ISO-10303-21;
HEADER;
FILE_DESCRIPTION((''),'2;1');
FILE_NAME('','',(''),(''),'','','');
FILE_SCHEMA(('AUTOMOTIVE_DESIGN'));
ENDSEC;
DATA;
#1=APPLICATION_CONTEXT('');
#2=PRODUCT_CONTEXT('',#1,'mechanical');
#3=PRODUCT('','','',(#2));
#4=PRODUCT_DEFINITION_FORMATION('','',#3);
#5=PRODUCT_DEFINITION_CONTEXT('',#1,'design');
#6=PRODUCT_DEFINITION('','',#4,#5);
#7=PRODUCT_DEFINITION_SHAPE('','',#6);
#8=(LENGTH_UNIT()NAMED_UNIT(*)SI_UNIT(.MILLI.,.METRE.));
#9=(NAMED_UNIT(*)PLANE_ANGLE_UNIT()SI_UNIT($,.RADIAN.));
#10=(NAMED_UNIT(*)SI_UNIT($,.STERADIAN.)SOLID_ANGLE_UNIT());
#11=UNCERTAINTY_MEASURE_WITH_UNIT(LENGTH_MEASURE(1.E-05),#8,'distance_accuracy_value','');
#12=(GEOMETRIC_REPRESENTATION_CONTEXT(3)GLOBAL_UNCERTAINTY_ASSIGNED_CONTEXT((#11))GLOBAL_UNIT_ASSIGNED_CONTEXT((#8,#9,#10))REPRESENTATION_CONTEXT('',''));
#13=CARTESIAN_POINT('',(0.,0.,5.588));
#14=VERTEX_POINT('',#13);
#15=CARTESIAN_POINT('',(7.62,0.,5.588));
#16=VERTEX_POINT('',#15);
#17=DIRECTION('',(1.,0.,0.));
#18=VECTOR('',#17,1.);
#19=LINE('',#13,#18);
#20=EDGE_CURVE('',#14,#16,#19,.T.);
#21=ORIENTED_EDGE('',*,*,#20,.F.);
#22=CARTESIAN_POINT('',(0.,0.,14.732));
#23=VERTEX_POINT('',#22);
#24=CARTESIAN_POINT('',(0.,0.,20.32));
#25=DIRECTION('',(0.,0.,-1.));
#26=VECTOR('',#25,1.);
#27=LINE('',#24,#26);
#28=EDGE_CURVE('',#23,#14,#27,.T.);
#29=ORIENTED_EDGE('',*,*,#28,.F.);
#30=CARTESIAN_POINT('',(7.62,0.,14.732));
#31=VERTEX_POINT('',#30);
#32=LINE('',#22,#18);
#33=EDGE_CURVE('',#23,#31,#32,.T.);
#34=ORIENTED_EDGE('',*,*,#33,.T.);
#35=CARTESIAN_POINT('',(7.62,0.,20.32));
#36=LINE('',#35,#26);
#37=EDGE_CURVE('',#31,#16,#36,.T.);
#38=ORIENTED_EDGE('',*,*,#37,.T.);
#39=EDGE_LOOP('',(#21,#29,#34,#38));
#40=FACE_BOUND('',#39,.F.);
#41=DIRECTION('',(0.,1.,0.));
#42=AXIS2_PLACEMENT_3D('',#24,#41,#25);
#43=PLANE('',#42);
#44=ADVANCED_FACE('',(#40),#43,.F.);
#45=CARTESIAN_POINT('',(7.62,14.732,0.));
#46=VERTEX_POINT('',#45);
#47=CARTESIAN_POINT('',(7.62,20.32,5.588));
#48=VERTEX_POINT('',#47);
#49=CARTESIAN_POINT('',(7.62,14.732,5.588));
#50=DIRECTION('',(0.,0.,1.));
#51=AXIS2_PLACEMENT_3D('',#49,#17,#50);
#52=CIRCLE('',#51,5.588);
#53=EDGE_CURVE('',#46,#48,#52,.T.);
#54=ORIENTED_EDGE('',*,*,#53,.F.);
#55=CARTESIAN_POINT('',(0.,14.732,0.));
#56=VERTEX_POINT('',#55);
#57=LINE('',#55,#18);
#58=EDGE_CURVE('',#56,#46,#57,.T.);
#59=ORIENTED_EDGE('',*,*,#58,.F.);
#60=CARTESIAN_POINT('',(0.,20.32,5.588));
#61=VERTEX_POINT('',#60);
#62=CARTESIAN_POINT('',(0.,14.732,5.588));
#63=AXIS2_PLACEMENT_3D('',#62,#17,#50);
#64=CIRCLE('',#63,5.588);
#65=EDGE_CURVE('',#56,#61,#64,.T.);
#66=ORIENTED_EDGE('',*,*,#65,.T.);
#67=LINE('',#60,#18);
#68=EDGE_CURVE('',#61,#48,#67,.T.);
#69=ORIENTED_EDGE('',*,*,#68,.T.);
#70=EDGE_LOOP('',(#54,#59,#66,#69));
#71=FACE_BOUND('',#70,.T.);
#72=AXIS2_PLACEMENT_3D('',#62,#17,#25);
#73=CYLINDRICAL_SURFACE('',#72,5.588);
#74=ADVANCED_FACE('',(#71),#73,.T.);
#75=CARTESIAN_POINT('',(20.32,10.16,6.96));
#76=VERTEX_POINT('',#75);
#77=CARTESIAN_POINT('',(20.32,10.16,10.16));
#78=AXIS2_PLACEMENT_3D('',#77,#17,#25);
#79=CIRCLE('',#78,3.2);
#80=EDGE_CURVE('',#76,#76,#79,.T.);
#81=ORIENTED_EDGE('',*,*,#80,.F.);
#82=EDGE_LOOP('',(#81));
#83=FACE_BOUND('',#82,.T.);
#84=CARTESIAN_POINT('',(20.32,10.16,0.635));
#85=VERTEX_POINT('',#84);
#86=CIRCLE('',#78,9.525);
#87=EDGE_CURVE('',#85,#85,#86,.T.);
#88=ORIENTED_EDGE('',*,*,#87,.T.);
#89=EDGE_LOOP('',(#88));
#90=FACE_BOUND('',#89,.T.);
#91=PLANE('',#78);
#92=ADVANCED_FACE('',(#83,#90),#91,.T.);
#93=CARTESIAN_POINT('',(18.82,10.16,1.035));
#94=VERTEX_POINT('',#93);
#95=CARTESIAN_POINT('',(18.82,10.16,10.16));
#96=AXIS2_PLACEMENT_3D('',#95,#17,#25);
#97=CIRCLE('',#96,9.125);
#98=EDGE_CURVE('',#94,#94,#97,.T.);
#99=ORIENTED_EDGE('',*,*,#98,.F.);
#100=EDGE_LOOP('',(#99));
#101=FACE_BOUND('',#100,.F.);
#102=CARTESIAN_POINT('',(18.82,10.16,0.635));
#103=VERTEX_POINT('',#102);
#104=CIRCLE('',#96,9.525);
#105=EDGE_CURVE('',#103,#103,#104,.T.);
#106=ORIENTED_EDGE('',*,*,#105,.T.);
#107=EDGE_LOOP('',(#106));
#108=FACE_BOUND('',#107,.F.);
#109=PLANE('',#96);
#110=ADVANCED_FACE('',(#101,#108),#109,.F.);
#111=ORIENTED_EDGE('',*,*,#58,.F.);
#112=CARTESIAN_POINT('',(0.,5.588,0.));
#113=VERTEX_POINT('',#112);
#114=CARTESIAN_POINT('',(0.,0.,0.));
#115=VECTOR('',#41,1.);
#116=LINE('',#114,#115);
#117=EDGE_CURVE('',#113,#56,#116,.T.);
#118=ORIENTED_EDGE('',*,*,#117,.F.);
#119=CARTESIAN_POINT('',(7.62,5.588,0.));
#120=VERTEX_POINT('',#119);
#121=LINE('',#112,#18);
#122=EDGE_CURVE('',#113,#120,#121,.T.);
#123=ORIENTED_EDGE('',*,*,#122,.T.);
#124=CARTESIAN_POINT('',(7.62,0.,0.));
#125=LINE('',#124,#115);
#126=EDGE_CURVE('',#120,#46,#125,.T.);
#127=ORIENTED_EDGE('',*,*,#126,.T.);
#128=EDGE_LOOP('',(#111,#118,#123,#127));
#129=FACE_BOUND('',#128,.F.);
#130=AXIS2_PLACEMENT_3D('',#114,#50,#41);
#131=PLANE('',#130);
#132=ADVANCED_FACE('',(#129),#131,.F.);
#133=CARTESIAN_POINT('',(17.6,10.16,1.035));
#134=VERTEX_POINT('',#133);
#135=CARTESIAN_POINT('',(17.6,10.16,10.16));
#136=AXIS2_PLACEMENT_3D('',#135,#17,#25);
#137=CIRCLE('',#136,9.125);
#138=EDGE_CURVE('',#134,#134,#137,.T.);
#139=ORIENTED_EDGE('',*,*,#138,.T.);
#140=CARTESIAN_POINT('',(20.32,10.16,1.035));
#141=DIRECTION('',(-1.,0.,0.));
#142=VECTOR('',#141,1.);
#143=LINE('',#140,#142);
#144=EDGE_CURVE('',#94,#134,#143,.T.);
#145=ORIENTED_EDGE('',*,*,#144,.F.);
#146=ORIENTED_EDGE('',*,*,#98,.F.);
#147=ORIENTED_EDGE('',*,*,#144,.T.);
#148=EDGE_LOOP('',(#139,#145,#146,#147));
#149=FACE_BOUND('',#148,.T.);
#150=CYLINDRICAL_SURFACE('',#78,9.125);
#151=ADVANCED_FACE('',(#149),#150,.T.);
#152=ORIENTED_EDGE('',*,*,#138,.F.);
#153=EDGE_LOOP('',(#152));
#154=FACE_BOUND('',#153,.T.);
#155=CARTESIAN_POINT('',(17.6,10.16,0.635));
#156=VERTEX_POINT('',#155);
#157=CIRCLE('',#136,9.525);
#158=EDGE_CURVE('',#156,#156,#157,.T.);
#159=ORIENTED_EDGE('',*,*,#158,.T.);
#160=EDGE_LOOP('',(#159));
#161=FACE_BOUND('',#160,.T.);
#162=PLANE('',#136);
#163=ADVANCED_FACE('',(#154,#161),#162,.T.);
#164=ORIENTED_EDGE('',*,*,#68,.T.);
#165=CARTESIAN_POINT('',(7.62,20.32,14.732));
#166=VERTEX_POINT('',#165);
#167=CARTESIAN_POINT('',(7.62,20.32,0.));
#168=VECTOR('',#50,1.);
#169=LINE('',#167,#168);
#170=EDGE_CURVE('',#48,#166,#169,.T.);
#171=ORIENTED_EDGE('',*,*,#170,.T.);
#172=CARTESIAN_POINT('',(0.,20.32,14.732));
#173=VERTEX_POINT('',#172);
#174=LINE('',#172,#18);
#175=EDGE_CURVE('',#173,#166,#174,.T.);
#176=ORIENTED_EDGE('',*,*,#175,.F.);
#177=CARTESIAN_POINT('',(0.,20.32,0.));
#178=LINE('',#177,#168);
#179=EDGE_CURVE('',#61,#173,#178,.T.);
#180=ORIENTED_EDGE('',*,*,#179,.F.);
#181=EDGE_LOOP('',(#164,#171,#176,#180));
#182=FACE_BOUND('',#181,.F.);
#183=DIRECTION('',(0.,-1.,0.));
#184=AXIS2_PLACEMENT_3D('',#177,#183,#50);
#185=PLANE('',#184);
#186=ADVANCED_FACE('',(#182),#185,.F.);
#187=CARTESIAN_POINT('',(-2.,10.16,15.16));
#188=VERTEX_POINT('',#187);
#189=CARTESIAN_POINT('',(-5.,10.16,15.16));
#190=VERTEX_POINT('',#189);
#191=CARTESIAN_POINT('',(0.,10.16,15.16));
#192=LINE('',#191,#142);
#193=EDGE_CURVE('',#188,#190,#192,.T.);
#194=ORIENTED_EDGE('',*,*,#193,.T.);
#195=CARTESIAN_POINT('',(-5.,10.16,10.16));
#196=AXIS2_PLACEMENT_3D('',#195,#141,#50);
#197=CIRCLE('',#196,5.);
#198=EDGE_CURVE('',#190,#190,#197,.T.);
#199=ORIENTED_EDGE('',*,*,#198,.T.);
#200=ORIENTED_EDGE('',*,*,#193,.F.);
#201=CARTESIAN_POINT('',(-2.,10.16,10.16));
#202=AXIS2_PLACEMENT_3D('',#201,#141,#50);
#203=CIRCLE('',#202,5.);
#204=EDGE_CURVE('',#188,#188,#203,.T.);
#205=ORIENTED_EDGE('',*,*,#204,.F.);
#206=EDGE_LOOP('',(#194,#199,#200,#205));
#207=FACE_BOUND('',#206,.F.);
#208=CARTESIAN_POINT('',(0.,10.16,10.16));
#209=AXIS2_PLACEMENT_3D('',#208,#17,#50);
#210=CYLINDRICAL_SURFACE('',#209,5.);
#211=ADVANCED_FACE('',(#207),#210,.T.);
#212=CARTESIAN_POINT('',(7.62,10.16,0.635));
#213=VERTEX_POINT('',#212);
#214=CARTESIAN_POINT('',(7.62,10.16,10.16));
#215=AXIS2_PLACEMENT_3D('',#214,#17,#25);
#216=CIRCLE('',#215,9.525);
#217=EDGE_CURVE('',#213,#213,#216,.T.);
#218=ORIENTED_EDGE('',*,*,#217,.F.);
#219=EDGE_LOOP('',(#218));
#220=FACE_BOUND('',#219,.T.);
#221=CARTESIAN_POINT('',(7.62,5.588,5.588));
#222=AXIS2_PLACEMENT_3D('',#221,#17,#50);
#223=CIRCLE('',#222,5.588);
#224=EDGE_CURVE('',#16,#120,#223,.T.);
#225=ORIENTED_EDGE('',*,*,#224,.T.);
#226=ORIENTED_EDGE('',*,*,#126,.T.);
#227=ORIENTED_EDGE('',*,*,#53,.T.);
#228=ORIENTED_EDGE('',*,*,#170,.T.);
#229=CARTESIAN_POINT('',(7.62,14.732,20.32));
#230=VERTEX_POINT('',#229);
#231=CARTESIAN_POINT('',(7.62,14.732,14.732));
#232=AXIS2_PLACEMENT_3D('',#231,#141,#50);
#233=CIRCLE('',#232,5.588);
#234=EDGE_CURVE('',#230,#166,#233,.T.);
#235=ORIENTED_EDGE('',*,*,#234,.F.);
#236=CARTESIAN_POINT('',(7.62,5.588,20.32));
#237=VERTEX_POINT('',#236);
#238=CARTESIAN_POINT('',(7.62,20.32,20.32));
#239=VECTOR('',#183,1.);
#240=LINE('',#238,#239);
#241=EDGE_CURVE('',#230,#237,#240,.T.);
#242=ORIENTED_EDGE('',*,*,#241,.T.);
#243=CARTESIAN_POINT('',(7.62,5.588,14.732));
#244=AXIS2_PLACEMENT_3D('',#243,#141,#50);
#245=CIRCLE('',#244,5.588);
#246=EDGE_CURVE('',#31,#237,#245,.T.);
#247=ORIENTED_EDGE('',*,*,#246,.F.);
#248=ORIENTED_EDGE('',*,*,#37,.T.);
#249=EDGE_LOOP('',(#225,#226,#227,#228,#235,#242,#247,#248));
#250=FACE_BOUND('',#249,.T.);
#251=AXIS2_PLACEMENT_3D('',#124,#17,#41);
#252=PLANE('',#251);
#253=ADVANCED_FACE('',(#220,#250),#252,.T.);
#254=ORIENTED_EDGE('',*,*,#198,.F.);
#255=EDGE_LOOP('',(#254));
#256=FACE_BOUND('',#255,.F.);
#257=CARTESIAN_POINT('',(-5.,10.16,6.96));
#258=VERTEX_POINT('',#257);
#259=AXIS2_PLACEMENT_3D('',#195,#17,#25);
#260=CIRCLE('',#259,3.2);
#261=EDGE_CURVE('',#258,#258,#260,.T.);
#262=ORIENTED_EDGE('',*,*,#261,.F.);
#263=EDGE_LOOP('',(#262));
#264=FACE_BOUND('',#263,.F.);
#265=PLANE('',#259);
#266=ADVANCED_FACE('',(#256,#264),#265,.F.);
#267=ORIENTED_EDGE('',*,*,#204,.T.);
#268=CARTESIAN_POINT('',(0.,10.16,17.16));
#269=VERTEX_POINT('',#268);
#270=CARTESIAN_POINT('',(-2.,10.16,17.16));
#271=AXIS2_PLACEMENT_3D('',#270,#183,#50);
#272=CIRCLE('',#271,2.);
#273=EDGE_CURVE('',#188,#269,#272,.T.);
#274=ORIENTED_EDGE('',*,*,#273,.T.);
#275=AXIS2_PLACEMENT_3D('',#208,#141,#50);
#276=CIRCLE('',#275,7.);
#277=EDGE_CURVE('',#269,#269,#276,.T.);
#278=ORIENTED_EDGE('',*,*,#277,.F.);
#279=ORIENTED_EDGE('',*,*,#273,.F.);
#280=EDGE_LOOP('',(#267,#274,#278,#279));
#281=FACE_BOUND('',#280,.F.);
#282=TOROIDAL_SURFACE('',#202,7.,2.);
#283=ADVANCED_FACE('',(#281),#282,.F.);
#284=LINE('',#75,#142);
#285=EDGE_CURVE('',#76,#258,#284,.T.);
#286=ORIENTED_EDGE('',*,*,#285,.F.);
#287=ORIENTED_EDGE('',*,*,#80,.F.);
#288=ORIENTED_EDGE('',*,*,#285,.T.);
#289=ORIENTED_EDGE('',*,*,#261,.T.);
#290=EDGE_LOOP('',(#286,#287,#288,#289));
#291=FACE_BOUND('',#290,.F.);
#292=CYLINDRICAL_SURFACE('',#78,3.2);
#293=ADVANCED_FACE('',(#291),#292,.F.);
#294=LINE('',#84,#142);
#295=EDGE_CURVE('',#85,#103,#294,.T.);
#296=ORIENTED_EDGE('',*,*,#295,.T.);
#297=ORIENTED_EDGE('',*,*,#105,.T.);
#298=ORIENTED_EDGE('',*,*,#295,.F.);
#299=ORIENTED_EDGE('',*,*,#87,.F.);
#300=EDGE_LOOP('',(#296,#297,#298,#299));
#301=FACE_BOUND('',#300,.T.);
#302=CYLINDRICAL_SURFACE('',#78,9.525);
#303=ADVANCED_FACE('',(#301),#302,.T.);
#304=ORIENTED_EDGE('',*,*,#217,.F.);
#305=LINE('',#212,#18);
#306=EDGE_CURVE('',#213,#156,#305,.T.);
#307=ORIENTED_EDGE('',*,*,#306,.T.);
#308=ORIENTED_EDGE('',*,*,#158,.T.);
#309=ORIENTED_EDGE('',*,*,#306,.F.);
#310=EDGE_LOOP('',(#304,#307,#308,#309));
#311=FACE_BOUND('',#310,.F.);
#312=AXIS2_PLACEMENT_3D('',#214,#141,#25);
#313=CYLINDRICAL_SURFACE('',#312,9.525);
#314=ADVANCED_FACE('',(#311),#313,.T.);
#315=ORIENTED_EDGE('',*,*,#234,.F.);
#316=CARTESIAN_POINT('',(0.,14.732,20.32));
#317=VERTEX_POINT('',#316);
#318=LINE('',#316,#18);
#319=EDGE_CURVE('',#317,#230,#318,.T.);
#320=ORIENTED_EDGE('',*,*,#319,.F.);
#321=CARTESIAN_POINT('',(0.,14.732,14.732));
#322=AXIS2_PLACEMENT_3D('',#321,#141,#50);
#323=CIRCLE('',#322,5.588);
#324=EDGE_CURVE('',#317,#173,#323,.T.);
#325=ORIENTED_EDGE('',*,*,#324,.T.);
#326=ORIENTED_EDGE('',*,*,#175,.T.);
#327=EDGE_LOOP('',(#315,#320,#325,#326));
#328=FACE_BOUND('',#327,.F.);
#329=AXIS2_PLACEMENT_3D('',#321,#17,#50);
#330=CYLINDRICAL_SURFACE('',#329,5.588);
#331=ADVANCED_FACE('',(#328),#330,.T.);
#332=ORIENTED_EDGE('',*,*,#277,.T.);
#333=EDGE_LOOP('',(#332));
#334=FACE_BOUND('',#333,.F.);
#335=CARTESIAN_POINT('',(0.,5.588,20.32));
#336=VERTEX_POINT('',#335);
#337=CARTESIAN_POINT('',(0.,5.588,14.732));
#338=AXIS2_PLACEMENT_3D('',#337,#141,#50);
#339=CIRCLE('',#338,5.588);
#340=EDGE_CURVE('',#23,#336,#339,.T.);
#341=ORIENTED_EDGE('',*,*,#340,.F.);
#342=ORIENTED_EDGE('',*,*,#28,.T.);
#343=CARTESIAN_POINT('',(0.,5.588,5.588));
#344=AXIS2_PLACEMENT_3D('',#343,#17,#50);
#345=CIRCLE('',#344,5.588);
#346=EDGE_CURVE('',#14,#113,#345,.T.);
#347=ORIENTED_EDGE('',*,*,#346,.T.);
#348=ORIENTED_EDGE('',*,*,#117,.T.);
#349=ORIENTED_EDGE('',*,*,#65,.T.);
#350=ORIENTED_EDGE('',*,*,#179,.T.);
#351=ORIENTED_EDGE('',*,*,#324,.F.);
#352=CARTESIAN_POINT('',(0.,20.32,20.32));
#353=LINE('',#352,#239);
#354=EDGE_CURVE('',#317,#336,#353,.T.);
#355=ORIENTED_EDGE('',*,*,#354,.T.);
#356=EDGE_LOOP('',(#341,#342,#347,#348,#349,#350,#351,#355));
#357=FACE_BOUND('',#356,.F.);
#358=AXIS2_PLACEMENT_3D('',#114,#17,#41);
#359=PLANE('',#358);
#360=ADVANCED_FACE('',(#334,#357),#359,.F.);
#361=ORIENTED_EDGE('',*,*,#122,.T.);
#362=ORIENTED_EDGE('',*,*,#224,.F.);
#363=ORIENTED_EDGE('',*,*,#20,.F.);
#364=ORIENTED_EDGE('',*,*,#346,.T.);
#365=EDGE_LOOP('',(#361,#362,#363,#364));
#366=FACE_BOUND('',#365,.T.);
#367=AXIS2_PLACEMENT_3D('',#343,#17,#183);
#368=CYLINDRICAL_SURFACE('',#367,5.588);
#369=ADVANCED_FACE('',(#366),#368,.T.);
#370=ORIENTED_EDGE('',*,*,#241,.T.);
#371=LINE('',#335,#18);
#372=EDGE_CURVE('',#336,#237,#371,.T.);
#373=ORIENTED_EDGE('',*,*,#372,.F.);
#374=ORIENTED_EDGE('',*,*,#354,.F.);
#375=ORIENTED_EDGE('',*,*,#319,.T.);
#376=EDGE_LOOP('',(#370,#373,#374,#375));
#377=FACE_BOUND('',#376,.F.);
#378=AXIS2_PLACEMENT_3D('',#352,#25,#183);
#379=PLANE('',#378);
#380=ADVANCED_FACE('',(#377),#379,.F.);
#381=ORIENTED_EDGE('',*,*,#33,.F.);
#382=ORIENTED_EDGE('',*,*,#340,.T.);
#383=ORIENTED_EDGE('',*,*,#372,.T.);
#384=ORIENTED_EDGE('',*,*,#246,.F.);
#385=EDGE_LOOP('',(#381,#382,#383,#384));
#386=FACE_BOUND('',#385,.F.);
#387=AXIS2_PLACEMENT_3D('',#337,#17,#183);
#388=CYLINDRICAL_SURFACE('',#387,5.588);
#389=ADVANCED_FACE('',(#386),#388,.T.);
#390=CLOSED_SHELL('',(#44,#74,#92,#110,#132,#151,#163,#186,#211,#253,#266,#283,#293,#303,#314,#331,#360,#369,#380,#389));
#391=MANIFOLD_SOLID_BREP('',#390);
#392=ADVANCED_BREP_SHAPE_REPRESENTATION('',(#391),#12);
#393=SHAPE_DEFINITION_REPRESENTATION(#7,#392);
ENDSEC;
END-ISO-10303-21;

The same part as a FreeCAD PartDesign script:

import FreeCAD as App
import Part
import Sketcher
from FreeCAD import Vector


def edges_at(feature, points):
    """Names of the edges that pass closest to the given points."""
    edges = feature.Shape.Edges
    near = lambda p: min(range(len(edges)), key=lambda i: edges[i].distToShape(Part.Vertex(*p))[0])
    return sorted({f"Edge{near(p) + 1}" for p in points})

doc = App.newDocument("Part")
body = doc.addObject("PartDesign::Body", "Body")

sketch1 = body.newObject("Sketcher::SketchObject", "Sketch")
sketch1.AttachmentSupport = (doc.getObject("YZ_Plane"), [""])
sketch1.MapMode = "FlatFace"
sketch1.addGeometry([
    Part.LineSegment(Vector(0, 20.32, 0), Vector(0, 0, 0)),
    Part.LineSegment(Vector(0, 0, 0), Vector(20.32, 0, 0)),
    Part.LineSegment(Vector(20.32, 0, 0), Vector(20.32, 20.32, 0)),
    Part.LineSegment(Vector(20.32, 20.32, 0), Vector(0, 20.32, 0)),
], False)
sketch1.addConstraint([
    Sketcher.Constraint("Coincident", 0, 2, 1, 1),
    Sketcher.Constraint("Coincident", 1, 2, 2, 1),
    Sketcher.Constraint("Coincident", 2, 2, 3, 1),
    Sketcher.Constraint("Coincident", 3, 2, 0, 1),
    Sketcher.Constraint("Vertical", 0),
    Sketcher.Constraint("Horizontal", 1),
    Sketcher.Constraint("Vertical", 2),
    Sketcher.Constraint("Horizontal", 3),
    Sketcher.Constraint("Coincident", 0, 2, -1, 1),
    Sketcher.Constraint("Equal", 3, 0),
    Sketcher.Constraint("DistanceX", 1, 1, 1, 2, 20.32),
])
pad1 = body.newObject("PartDesign::Pad", "Pad")
pad1.Profile = sketch1
pad1.Length = 7.62

sketch2 = body.newObject("Sketcher::SketchObject", "Sketch001")
sketch2.AttachmentSupport = (doc.getObject("YZ_Plane"), [""])
sketch2.MapMode = "FlatFace"
sketch2.AttachmentOffset = App.Placement(Vector(0, 0, 7.62), App.Rotation())
sketch2.addGeometry(Part.Circle(Vector(10.16, 10.16, 0), Vector(0, 0, 1), 9.525), False)
sketch2.addConstraint([
    Sketcher.Constraint("Diameter", 0, 19.05),
    Sketcher.Constraint("DistanceX", -1, 1, 0, 3, 10.16),
    Sketcher.Constraint("DistanceY", -1, 1, 0, 3, 10.16),
])
pad2 = body.newObject("PartDesign::Pad", "Pad001")
pad2.Profile = sketch2
pad2.Length = 12.7
doc.recompute()

fillet = body.newObject("PartDesign::Fillet", "Fillet")
fillet.Base = (pad2, edges_at(pad2, [
    (3.81, 20.32, 0),
    (3.81, 0, 0),
    (3.81, 0, 20.32),
    (3.81, 20.32, 20.32),
]))
fillet.Radius = 5.588

sketch3 = body.newObject("Sketcher::SketchObject", "Sketch002")
sketch3.AttachmentSupport = (doc.getObject("YZ_Plane"), [""])
sketch3.MapMode = "FlatFace"
sketch3.AttachmentOffset = App.Placement(Vector(0, 0, 20.32), App.Rotation())
sketch3.addGeometry([
    Part.Circle(Vector(10.16, 10.16, 0), Vector(0, 0, 1), 9.525),
    Part.Circle(Vector(10.16, 10.16, 0), Vector(0, 0, 1), 9.125),
], False)
sketch3.addConstraint([
    Sketcher.Constraint("Coincident", 1, 3, 0, 3),
    Sketcher.Constraint("Diameter", 1, 18.25),
    Sketcher.Constraint("Diameter", 0, 19.05),
    Sketcher.Constraint("DistanceX", -1, 1, 0, 3, 10.16),
    Sketcher.Constraint("DistanceY", -1, 1, 0, 3, 10.16),
])
pocket1 = body.newObject("PartDesign::Pocket", "Pocket")
pocket1.Profile = sketch3
pocket1.Length = 2.72

sketch4 = body.newObject("Sketcher::SketchObject", "Sketch003")
sketch4.AttachmentSupport = (doc.getObject("YZ_Plane"), [""])
sketch4.MapMode = "FlatFace"
sketch4.AttachmentOffset = App.Placement(Vector(0, 0, 20.32), App.Rotation())
sketch4.addGeometry(Part.Circle(Vector(10.16, 10.16, 0), Vector(0, 0, 1), 9.525), False)
sketch4.addConstraint([
    Sketcher.Constraint("Diameter", 0, 19.05),
    Sketcher.Constraint("DistanceX", -1, 1, 0, 3, 10.16),
    Sketcher.Constraint("DistanceY", -1, 1, 0, 3, 10.16),
])
pad3 = body.newObject("PartDesign::Pad", "Pad002")
pad3.Profile = sketch4
pad3.Length = 1.5
pad3.Reversed = True

sketch5 = body.newObject("Sketcher::SketchObject", "Sketch004")
sketch5.AttachmentSupport = (doc.getObject("YZ_Plane"), [""])
sketch5.MapMode = "FlatFace"
sketch5.addGeometry(Part.Circle(Vector(10.16, 10.16, 0), Vector(0, 0, 1), 4), False)
sketch5.addConstraint([
    Sketcher.Constraint("Diameter", 0, 8.0),
    Sketcher.Constraint("DistanceX", -1, 1, 0, 3, 10.16),
    Sketcher.Constraint("DistanceY", -1, 1, 0, 3, 10.16),
])
pocket2 = body.newObject("PartDesign::Pocket", "Pocket001")
pocket2.Profile = sketch5
pocket2.Length = 25
pocket2.Reversed = True

sketch6 = body.newObject("Sketcher::SketchObject", "Sketch005")
sketch6.AttachmentSupport = (doc.getObject("YZ_Plane"), [""])
sketch6.MapMode = "FlatFace"
sketch6.addGeometry([
    Part.Circle(Vector(10.16, 10.16, 0), Vector(0, 0, 1), 5),
    Part.Circle(Vector(10.16, 10.16, 0), Vector(0, 0, 1), 4),
], False)
sketch6.addConstraint([
    Sketcher.Constraint("Coincident", 1, 3, 0, 3),
    Sketcher.Constraint("Diameter", 0, 10.0),
    Sketcher.Constraint("Diameter", 1, 8.0),
    Sketcher.Constraint("DistanceX", -1, 1, 0, 3, 10.16),
    Sketcher.Constraint("DistanceY", -1, 1, 0, 3, 10.16),
])
pad4 = body.newObject("PartDesign::Pad", "Pad003")
pad4.Profile = sketch6
pad4.Length = 5
pad4.Reversed = True
doc.recompute()

fillet2 = body.newObject("PartDesign::Fillet", "Fillet001")
fillet2.Base = (pad4, edges_at(pad4, [(0, 10.16, 5.16)]))
fillet2.Radius = 2

sketch7 = body.newObject("Sketcher::SketchObject", "Sketch006")
sketch7.AttachmentSupport = (doc.getObject("YZ_Plane"), [""])
sketch7.MapMode = "FlatFace"
sketch7.AttachmentOffset = App.Placement(Vector(0, 0, 20.32), App.Rotation())
sketch7.addGeometry([
    Part.Circle(Vector(10.16, 10.16, 0), Vector(0, 0, 1), 4),
    Part.Circle(Vector(10.16, 10.16, 0), Vector(0, 0, 1), 3.2),
], False)
sketch7.addConstraint([
    Sketcher.Constraint("Coincident", 1, 3, 0, 3),
    Sketcher.Constraint("Diameter", 1, 6.4),
    Sketcher.Constraint("Diameter", 0, 8.0),
    Sketcher.Constraint("DistanceX", -1, 1, 0, 3, 10.16),
    Sketcher.Constraint("DistanceY", -1, 1, 0, 3, 10.16),
])
pad5 = body.newObject("PartDesign::Pad", "Pad004")
pad5.Profile = sketch7
pad5.Length = 25.32
pad5.Reversed = True

doc.recompute()
